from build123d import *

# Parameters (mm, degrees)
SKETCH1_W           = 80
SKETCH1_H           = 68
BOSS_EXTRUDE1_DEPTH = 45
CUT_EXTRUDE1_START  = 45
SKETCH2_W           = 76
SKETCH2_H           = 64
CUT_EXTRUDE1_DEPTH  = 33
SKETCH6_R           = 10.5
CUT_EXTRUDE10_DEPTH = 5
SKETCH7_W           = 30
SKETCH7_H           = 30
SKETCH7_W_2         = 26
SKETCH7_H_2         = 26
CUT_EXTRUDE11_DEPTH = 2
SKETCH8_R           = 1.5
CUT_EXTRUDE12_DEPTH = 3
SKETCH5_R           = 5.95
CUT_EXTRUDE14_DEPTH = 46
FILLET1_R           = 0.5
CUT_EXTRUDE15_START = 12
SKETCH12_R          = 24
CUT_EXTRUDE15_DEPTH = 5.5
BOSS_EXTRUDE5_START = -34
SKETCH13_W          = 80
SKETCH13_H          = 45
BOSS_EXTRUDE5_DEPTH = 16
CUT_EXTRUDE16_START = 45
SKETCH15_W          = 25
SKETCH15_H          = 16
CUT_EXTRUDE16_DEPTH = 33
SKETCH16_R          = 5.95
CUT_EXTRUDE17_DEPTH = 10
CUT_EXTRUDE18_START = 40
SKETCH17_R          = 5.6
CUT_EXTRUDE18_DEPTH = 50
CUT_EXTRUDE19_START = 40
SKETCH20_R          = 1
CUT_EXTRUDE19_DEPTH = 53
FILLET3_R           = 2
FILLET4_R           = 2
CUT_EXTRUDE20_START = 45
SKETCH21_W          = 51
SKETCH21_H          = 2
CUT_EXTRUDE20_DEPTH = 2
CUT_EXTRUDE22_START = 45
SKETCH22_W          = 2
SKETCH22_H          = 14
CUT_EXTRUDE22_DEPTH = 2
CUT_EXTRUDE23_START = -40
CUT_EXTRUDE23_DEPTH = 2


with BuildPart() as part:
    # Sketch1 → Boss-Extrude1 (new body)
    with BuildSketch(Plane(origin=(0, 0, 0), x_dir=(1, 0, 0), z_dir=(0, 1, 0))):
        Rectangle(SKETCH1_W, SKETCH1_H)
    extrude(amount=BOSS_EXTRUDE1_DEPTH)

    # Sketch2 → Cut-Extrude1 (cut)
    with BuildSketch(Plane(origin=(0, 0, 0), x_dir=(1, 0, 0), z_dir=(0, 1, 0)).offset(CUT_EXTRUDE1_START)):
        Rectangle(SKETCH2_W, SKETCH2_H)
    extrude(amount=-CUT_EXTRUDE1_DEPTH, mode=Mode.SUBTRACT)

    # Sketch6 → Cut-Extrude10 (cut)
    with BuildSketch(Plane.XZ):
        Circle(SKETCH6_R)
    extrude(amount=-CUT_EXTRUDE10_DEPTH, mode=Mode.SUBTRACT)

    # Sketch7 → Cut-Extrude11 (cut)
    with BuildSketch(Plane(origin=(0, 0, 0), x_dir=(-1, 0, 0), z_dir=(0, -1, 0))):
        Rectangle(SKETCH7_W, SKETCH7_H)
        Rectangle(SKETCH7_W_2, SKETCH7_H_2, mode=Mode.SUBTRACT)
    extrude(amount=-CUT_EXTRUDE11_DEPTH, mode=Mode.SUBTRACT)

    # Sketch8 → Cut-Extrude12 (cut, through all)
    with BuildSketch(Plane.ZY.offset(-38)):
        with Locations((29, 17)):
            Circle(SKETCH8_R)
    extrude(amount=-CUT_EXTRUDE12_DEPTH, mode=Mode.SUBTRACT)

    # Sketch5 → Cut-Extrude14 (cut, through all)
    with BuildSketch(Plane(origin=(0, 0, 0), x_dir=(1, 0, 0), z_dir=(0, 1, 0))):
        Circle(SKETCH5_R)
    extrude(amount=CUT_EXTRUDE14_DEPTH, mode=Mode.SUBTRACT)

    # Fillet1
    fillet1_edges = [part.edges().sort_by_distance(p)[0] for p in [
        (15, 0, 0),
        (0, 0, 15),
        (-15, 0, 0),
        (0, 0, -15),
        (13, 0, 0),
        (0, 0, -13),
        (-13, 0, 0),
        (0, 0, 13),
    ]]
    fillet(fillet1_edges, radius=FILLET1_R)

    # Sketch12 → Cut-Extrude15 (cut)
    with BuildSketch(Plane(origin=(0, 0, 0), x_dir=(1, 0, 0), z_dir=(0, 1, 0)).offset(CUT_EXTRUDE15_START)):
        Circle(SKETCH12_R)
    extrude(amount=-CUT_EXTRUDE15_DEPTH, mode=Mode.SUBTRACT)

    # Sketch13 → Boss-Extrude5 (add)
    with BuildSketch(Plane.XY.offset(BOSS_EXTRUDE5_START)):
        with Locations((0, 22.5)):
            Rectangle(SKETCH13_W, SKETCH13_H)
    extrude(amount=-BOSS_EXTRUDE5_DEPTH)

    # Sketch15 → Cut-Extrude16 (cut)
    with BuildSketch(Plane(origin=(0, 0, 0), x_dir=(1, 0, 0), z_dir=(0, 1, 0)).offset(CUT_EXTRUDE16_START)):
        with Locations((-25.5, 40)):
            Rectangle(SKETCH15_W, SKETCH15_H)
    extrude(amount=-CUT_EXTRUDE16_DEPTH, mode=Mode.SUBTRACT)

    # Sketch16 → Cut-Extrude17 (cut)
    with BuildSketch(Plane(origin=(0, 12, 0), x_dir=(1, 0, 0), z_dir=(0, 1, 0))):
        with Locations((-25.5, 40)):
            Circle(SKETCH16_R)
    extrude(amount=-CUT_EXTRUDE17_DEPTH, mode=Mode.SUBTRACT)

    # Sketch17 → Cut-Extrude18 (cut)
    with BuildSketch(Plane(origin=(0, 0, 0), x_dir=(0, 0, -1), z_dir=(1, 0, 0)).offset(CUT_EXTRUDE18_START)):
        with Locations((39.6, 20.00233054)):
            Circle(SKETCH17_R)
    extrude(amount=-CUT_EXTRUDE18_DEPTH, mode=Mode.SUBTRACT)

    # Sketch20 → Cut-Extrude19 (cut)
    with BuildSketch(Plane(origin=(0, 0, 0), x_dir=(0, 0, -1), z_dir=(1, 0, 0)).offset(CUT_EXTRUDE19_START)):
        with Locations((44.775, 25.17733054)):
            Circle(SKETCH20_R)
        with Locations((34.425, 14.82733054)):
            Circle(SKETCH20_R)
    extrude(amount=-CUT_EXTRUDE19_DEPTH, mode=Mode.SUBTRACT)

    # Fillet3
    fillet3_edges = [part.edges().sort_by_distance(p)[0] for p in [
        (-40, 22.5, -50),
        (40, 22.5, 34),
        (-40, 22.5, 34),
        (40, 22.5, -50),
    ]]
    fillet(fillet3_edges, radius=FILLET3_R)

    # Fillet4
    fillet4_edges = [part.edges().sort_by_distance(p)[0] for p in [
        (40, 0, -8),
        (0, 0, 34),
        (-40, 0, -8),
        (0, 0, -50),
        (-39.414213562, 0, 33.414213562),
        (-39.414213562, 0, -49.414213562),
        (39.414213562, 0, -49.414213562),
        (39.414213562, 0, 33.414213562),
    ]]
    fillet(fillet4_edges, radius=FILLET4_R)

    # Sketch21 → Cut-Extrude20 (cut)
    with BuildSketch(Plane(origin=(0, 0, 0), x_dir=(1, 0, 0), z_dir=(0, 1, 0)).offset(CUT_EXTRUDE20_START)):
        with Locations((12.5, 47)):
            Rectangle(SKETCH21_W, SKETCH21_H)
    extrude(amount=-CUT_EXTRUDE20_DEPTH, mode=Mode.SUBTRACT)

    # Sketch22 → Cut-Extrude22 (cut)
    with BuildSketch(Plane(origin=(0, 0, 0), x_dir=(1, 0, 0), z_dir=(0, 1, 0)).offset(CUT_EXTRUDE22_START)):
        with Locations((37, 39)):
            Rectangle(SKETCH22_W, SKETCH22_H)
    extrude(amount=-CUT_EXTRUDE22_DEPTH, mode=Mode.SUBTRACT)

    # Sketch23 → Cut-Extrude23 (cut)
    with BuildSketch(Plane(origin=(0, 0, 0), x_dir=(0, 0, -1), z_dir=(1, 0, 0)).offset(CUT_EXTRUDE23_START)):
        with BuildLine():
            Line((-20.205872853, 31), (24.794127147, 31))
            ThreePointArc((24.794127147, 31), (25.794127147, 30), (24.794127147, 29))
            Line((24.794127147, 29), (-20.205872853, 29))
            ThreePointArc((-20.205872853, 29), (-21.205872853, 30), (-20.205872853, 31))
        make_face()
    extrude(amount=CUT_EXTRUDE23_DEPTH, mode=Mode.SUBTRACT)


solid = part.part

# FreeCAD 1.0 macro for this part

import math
import FreeCAD as App
import Part
import Sketcher
from FreeCAD import Vector
Q = App.Units.Quantity


def edges_at(feature, points):
    """Names of the edges that pass closest to the given points."""
    edges = feature.Shape.Edges
    near = lambda p: min(range(len(edges)), key=lambda i: edges[i].distToShape(Part.Vertex(*p))[0])
    return sorted({f"Edge{near(p) + 1}" for p in points})


def add_polygon(sketch, points):
    """Adds a closed chain of lines whose ends are joined by coincident constraints."""
    first, n = sketch.GeometryCount, len(points)
    for a, b in zip(points, points[1:] + points[:1]):
        sketch.addGeometry(Part.LineSegment(App.Vector(*a, 0), App.Vector(*b, 0)), False)
    for i in range(n):
        sketch.addConstraint(Sketcher.Constraint("Coincident", first + i, 2, first + (i + 1) % n, 1))

doc = App.newDocument("Part")
body = doc.addObject("PartDesign::Body", "Body")

sketch1 = body.newObject("Sketcher::SketchObject", "Sketch")
sketch1.AttachmentSupport = (doc.getObject("XZ_Plane"), [""])
sketch1.MapMode = "FlatFace"
add_polygon(sketch1, [(-40, -34), (-40, 34), (40, 34), (40, -34)])
sketch1.addConstraint([
    Sketcher.Constraint("Vertical", 0),
    Sketcher.Constraint("Horizontal", 1),
    Sketcher.Constraint("Vertical", 2),
    Sketcher.Constraint("Horizontal", 3),
    Sketcher.Constraint("Symmetric", 0, 2, 2, 2, -1, 1),
    Sketcher.Constraint("DistanceX", 1, 1, 1, 2, Q("80 mm")),
    Sketcher.Constraint("DistanceY", 0, 1, 0, 2, Q("68 mm")),
])
pad1 = body.newObject("PartDesign::Pad", "Pad")
pad1.Profile = sketch1
pad1.Length = 45
pad1.Reversed = True

sketch2 = body.newObject("Sketcher::SketchObject", "Sketch001")
sketch2.AttachmentSupport = (doc.getObject("XZ_Plane"), [""])
sketch2.MapMode = "FlatFace"
sketch2.AttachmentOffset = App.Placement(Vector(0, 0, -45), App.Rotation())
add_polygon(sketch2, [(-38, -32), (-38, 32), (38, 32), (38, -32)])
sketch2.addConstraint([
    Sketcher.Constraint("Vertical", 0),
    Sketcher.Constraint("Horizontal", 1),
    Sketcher.Constraint("Vertical", 2),
    Sketcher.Constraint("Horizontal", 3),
    Sketcher.Constraint("Symmetric", 0, 2, 2, 2, -1, 1),
    Sketcher.Constraint("DistanceX", 1, 1, 1, 2, Q("76 mm")),
    Sketcher.Constraint("DistanceY", 0, 1, 0, 2, Q("64 mm")),
])
pocket1 = body.newObject("PartDesign::Pocket", "Pocket")
pocket1.Profile = sketch2
pocket1.Length = 33
pocket1.Reversed = True

sketch3 = body.newObject("Sketcher::SketchObject", "Sketch002")
sketch3.AttachmentSupport = (doc.getObject("XZ_Plane"), [""])
sketch3.MapMode = "FlatFace"
sketch3.addGeometry(Part.Circle(Vector(0, 0, 0), Vector(0, 0, 1), 10), False)
sketch3.addConstraint([
    Sketcher.Constraint("Coincident", 0, 3, -1, 1),
    Sketcher.Constraint("Diameter", 0, Q("21 mm")),
])
pocket2 = body.newObject("PartDesign::Pocket", "Pocket001")
pocket2.Profile = sketch3
pocket2.Length = 5

sketch4 = body.newObject("Sketcher::SketchObject", "Sketch003")
sketch4.AttachmentSupport = (doc.getObject("XZ_Plane"), [""])
sketch4.MapMode = "FlatFace"
add_polygon(sketch4, [(15, -15), (15, 15), (-15, 15), (-15, -15)])
add_polygon(sketch4, [(-13, 13), (13, 13), (13, -13), (-13, -13)])
sketch4.addConstraint([
    Sketcher.Constraint("Vertical", 0),
    Sketcher.Constraint("Horizontal", 1),
    Sketcher.Constraint("Vertical", 2),
    Sketcher.Constraint("Horizontal", 3),
    Sketcher.Constraint("Horizontal", 4),
    Sketcher.Constraint("Vertical", 5),
    Sketcher.Constraint("Horizontal", 6),
    Sketcher.Constraint("Vertical", 7),
    Sketcher.Constraint("Symmetric", 0, 2, 2, 2, -1, 1),
    Sketcher.Constraint("Symmetric", 4, 2, 6, 2, -1, 1),
    Sketcher.Constraint("Equal", 3, 0),
    Sketcher.Constraint("Equal", 6, 5),
    Sketcher.Constraint("DistanceX", 1, 2, 1, 1, Q("30 mm")),
    Sketcher.Constraint("DistanceX", 4, 1, 4, 2, Q("26 mm")),
])
pocket3 = body.newObject("PartDesign::Pocket", "Pocket002")
pocket3.Profile = sketch4
pocket3.Length = 2

sketch5 = body.newObject("Sketcher::SketchObject", "Sketch004")
sketch5.AttachmentSupport = (doc.getObject("YZ_Plane"), [""])
sketch5.MapMode = "FlatFace"
sketch5.AttachmentOffset = App.Placement(Vector(0, 0, 38), App.Rotation())
sketch5.addGeometry(Part.Circle(Vector(17, 29, 0), Vector(0, 0, 1), 1.5), False)
sketch5.addConstraint([
    Sketcher.Constraint("Diameter", 0, Q("3 mm")),
    Sketcher.Constraint("DistanceX", -1, 1, 0, 3, Q("17 mm")),
    Sketcher.Constraint("DistanceY", -1, 1, 0, 3, Q("29 mm")),
])
pocket4 = body.newObject("PartDesign::Pocket", "Pocket003")
pocket4.Profile = sketch5
pocket4.Type = "ThroughAll"
pocket4.Reversed = True

sketch6 = body.newObject("Sketcher::SketchObject", "Sketch005")
sketch6.AttachmentSupport = (doc.getObject("XZ_Plane"), [""])
sketch6.MapMode = "FlatFace"
sketch6.addGeometry(Part.Circle(Vector(0, 0, 0), Vector(0, 0, 1), 6), False)
sketch6.addConstraint([
    Sketcher.Constraint("Coincident", 0, 3, -1, 1),
    Sketcher.Constraint("Diameter", 0, Q("11.9 mm")),
])
pocket5 = body.newObject("PartDesign::Pocket", "Pocket004")
pocket5.Profile = sketch6
pocket5.Type = "ThroughAll"
doc.recompute()

fillet = body.newObject("PartDesign::Fillet", "Fillet")
fillet.Base = (pocket5, edges_at(pocket5, [
    (15, 0, 0),
    (0, 0, 15),
    (-15, 0, 0),
    (0, 0, -15),
    (13, 0, 0),
    (0, 0, -13),
    (-13, 0, 0),
    (0, 0, 13),
]))
fillet.Radius = 0.5

sketch7 = body.newObject("Sketcher::SketchObject", "Sketch006")
sketch7.AttachmentSupport = (doc.getObject("XZ_Plane"), [""])
sketch7.MapMode = "FlatFace"
sketch7.AttachmentOffset = App.Placement(Vector(0, 0, -12), App.Rotation())
sketch7.addGeometry(Part.Circle(Vector(0, 0, 0), Vector(0, 0, 1), 24), False)
sketch7.addConstraint([
    Sketcher.Constraint("Coincident", 0, 3, -1, 1),
    Sketcher.Constraint("Diameter", 0, Q("48 mm")),
])
pocket6 = body.newObject("PartDesign::Pocket", "Pocket005")
pocket6.Profile = sketch7
pocket6.Length = 5.5
pocket6.Reversed = True

sketch8 = body.newObject("Sketcher::SketchObject", "Sketch007")
sketch8.AttachmentSupport = (doc.getObject("XY_Plane"), [""])
sketch8.MapMode = "FlatFace"
sketch8.AttachmentOffset = App.Placement(Vector(0, 0, -34), App.Rotation())
add_polygon(sketch8, [(-40, 45), (-40, 0), (40, 0), (40, 45)])
sketch8.addConstraint([
    Sketcher.Constraint("Vertical", 0),
    Sketcher.Constraint("Horizontal", 1),
    Sketcher.Constraint("Vertical", 2),
    Sketcher.Constraint("Horizontal", 3),
    Sketcher.Constraint("Symmetric", 0, 2, 1, 2, -1, 1),
    Sketcher.Constraint("DistanceX", 1, 1, 1, 2, Q("80 mm")),
    Sketcher.Constraint("DistanceY", 0, 2, 0, 1, Q("45 mm")),
])
pad2 = body.newObject("PartDesign::Pad", "Pad001")
pad2.Profile = sketch8
pad2.Length = 16
pad2.Reversed = True

sketch9 = body.newObject("Sketcher::SketchObject", "Sketch008")
sketch9.AttachmentSupport = (doc.getObject("XZ_Plane"), [""])
sketch9.MapMode = "FlatFace"
sketch9.AttachmentOffset = App.Placement(Vector(0, 0, -45), App.Rotation())
add_polygon(sketch9, [(-38, -48), (-38, -32), (-13, -32), (-13, -48)])
sketch9.addConstraint([
    Sketcher.Constraint("Vertical", 0),
    Sketcher.Constraint("Horizontal", 1),
    Sketcher.Constraint("Vertical", 2),
    Sketcher.Constraint("Horizontal", 3),
    Sketcher.Constraint("DistanceX", 1, 1, 1, 2, Q("25 mm")),
    Sketcher.Constraint("DistanceY", 0, 1, 0, 2, Q("16 mm")),
    Sketcher.Constraint("DistanceX", 0, 2, -1, 1, Q("38 mm")),
    Sketcher.Constraint("DistanceY", 0, 2, -1, 1, Q("32 mm")),
])
pocket7 = body.newObject("PartDesign::Pocket", "Pocket006")
pocket7.Profile = sketch9
pocket7.Length = 33
pocket7.Reversed = True

sketch10 = body.newObject("Sketcher::SketchObject", "Sketch009")
sketch10.AttachmentSupport = (doc.getObject("XZ_Plane"), [""])
sketch10.MapMode = "FlatFace"
sketch10.AttachmentOffset = App.Placement(Vector(0, 0, -12), App.Rotation())
sketch10.addGeometry(Part.Circle(Vector(-26, -40, 0), Vector(0, 0, 1), 6), False)
sketch10.addConstraint([
    Sketcher.Constraint("Diameter", 0, Q("11.9 mm")),
    Sketcher.Constraint("DistanceY", 0, 3, -1, 1, Q("40 mm")),
    Sketcher.Constraint("DistanceX", 0, 3, -1, 1, Q("25.5 mm")),
])
pocket8 = body.newObject("PartDesign::Pocket", "Pocket007")
pocket8.Profile = sketch10
pocket8.Length = 10
pocket8.Reversed = True

sketch11 = body.newObject("Sketcher::SketchObject", "Sketch010")
sketch11.AttachmentSupport = (doc.getObject("YZ_Plane"), [""])
sketch11.MapMode = "FlatFace"
sketch11.AttachmentOffset = App.Placement(Vector(0, 0, 40), App.Rotation())
sketch11.addGeometry(Part.Circle(Vector(20, -40, 0), Vector(0, 0, 1), 6), False)
sketch11.addConstraint([
    Sketcher.Constraint("Diameter", 0, Q("11.2 mm")),
    Sketcher.Constraint("DistanceY", 0, 3, -1, 1, Q("39.6 mm")),
    Sketcher.Constraint("DistanceX", -1, 1, 0, 3, Q("20.002331 mm")),
])
pocket9 = body.newObject("PartDesign::Pocket", "Pocket008")
pocket9.Profile = sketch11
pocket9.Length = 50

sketch12 = body.newObject("Sketcher::SketchObject", "Sketch011")
sketch12.AttachmentSupport = (doc.getObject("YZ_Plane"), [""])
sketch12.MapMode = "FlatFace"
sketch12.AttachmentOffset = App.Placement(Vector(0, 0, 40), App.Rotation())
sketch12.addGeometry([
    Part.Circle(Vector(25.2, -44.8, 0), Vector(0, 0, 1), 1),
    Part.Circle(Vector(14.8, -34.4, 0), Vector(0, 0, 1), 1),
], False)
sketch12.addConstraint([
    Sketcher.Constraint("Equal", 0, 1),
    Sketcher.Constraint("Diameter", 0, Q("2 mm")),
    Sketcher.Constraint("DistanceX", 1, 3, 0, 3, Q("10.35 mm")),
    Sketcher.Constraint("DistanceY", 0, 3, 1, 3, Q("10.35 mm")),
    Sketcher.Constraint("DistanceY", 0, 3, -1, 1, Q("44.775 mm")),
    Sketcher.Constraint("DistanceX", -1, 1, 0, 3, Q("25.177331 mm")),
])
pocket10 = body.newObject("PartDesign::Pocket", "Pocket009")
pocket10.Profile = sketch12
pocket10.Length = 53
doc.recompute()

fillet2 = body.newObject("PartDesign::Fillet", "Fillet001")
fillet2.Base = (pocket10, edges_at(pocket10, [
    (-40, 22.5, -50),
    (40, 22.5, 34),
    (-40, 22.5, 34),
    (40, 22.5, -50),
]))
fillet2.Radius = 2
doc.recompute()

fillet3 = body.newObject("PartDesign::Fillet", "Fillet002")
fillet3.Base = (fillet2, edges_at(fillet2, [
    (40, 0, -8),
    (0, 0, 34),
    (-40, 0, -8),
    (0, 0, -50),
    (-39.414, 0, 33.414),
    (-39.414, 0, -49.414),
    (39.414, 0, -49.414),
    (39.414, 0, 33.414),
]))
fillet3.Radius = 2

sketch13 = body.newObject("Sketcher::SketchObject", "Sketch012")
sketch13.AttachmentSupport = (doc.getObject("XZ_Plane"), [""])
sketch13.MapMode = "FlatFace"
sketch13.AttachmentOffset = App.Placement(Vector(0, 0, -45), App.Rotation())
add_polygon(sketch13, [(-13, -48), (-13, -46), (38, -46), (38, -48)])
sketch13.addConstraint([
    Sketcher.Constraint("Vertical", 0),
    Sketcher.Constraint("Horizontal", 1),
    Sketcher.Constraint("Vertical", 2),
    Sketcher.Constraint("Horizontal", 3),
    Sketcher.Constraint("DistanceX", 1, 1, 1, 2, Q("51 mm")),
    Sketcher.Constraint("DistanceY", 0, 1, 0, 2, Q("2 mm")),
    Sketcher.Constraint("DistanceX", 0, 2, -1, 1, Q("13 mm")),
    Sketcher.Constraint("DistanceY", 0, 2, -1, 1, Q("46 mm")),
])
pocket11 = body.newObject("PartDesign::Pocket", "Pocket010")
pocket11.Profile = sketch13
pocket11.Length = 2
pocket11.Reversed = True

sketch14 = body.newObject("Sketcher::SketchObject", "Sketch013")
sketch14.AttachmentSupport = (doc.getObject("XZ_Plane"), [""])
sketch14.MapMode = "FlatFace"
sketch14.AttachmentOffset = App.Placement(Vector(0, 0, -45), App.Rotation())
add_polygon(sketch14, [(36, -46), (36, -32), (38, -32), (38, -46)])
sketch14.addConstraint([
    Sketcher.Constraint("Vertical", 0),
    Sketcher.Constraint("Horizontal", 1),
    Sketcher.Constraint("Vertical", 2),
    Sketcher.Constraint("Horizontal", 3),
    Sketcher.Constraint("DistanceX", 1, 1, 1, 2, Q("2 mm")),
    Sketcher.Constraint("DistanceY", 0, 1, 0, 2, Q("14 mm")),
    Sketcher.Constraint("DistanceX", -1, 1, 0, 2, Q("36 mm")),
    Sketcher.Constraint("DistanceY", 0, 2, -1, 1, Q("32 mm")),
])
pocket12 = body.newObject("PartDesign::Pocket", "Pocket011")
pocket12.Profile = sketch14
pocket12.Length = 2
pocket12.Reversed = True

sketch15 = body.newObject("Sketcher::SketchObject", "Sketch014")
sketch15.AttachmentSupport = (doc.getObject("YZ_Plane"), [""])
sketch15.MapMode = "FlatFace"
sketch15.AttachmentOffset = App.Placement(Vector(0, 0, -40), App.Rotation())
sketch15.addGeometry([
    Part.LineSegment(Vector(31, -24.8, 0), Vector(31, 20.2, 0)),
    Part.ArcOfCircle(Part.Circle(Vector(30, 20.2, 0), Vector(0, 0, 1), 1), math.radians(0), math.radians(180)),
    Part.LineSegment(Vector(29, 20.2, 0), Vector(29, -24.8, 0)),
    Part.ArcOfCircle(Part.Circle(Vector(30, -24.8, 0), Vector(0, 0, 1), 1), math.radians(180), math.radians(360)),
], False)
sketch15.addConstraint([
    Sketcher.Constraint("Tangent", 0, 2, 1, 1),
    Sketcher.Constraint("Tangent", 1, 2, 2, 1),
    Sketcher.Constraint("Tangent", 2, 2, 3, 1),
    Sketcher.Constraint("Tangent", 3, 2, 0, 1),
    Sketcher.Constraint("Vertical", 0),
    Sketcher.Constraint("Vertical", 2),
    Sketcher.Constraint("Radius", 1, Q("1 mm")),
    Sketcher.Constraint("DistanceY", 0, 1, 0, 2, Q("45 mm")),
    Sketcher.Constraint("DistanceX", -1, 1, 1, 3, Q("30 mm")),
    Sketcher.Constraint("DistanceY", -1, 1, 1, 3, Q("20.205873 mm")),
])
pocket13 = body.newObject("PartDesign::Pocket", "Pocket012")
pocket13.Profile = sketch15
pocket13.Length = 2
pocket13.Reversed = True

doc.recompute()
